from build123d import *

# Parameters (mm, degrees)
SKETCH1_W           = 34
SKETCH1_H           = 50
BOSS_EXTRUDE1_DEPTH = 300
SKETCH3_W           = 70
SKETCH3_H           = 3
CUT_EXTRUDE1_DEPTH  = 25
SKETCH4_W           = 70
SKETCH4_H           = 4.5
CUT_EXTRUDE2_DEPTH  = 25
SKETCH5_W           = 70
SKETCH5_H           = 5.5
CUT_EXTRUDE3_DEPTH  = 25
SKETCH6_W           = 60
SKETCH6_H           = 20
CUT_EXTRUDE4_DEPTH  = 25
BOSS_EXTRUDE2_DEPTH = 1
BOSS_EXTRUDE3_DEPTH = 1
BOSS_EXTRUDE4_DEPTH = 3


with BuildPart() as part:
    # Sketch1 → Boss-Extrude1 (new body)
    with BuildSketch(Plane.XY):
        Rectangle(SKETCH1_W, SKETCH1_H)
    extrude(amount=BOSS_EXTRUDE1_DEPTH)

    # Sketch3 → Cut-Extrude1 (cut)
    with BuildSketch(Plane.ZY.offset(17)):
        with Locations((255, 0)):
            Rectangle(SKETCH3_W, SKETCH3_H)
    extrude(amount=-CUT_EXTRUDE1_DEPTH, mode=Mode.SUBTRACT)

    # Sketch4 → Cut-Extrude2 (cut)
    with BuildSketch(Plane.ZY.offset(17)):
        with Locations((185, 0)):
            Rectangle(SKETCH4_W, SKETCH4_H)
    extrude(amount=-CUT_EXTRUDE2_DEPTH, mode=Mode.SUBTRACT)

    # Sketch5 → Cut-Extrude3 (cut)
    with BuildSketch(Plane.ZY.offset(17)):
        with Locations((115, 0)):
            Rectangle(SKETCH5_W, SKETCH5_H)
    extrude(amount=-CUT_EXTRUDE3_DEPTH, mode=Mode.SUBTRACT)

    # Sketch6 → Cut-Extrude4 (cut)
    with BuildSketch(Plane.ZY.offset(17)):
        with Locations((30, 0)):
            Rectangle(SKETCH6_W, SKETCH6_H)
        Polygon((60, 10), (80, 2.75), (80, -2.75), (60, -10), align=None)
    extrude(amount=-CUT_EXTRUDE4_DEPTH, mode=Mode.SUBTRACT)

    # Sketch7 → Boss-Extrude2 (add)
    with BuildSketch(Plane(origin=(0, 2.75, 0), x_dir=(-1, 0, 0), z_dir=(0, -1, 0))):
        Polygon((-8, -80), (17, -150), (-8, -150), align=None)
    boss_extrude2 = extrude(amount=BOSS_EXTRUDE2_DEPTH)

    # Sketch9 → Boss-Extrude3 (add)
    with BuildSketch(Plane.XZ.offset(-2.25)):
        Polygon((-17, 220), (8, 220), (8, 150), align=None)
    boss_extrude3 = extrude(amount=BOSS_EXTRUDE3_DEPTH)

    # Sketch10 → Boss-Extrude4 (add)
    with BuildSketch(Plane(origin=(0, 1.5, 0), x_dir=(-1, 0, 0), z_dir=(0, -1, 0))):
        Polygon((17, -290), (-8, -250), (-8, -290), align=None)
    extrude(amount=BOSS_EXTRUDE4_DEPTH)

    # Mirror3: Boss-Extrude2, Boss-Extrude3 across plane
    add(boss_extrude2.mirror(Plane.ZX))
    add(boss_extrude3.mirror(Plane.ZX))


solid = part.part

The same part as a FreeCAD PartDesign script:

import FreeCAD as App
import Part
import Sketcher
from FreeCAD import Vector


def add_polygon(sketch, points):
    """Adds a closed chain of lines whose ends are joined by coincident constraints."""
    first, n = sketch.GeometryCount, len(points)
    for a, b in zip(points, points[1:] + points[:1]):
        sketch.addGeometry(Part.LineSegment(App.Vector(*a, 0), App.Vector(*b, 0)), False)
    for i in range(n):
        sketch.addConstraint(Sketcher.Constraint("Coincident", first + i, 2, first + (i + 1) % n, 1))

doc = App.newDocument("Part")
params = doc.addObject("Spreadsheet::Sheet", "Params")
for row, (alias, value) in enumerate([
    ("sketch1_width", "34 mm"),
    ("sketch1_height", "50 mm"),
    ("pad1_length", "300 mm"),
    ("sketch2_width", "3 mm"),
    ("sketch2_height", "70 mm"),
    ("pocket1_length", "25 mm"),
    ("sketch3_height", "70 mm"),
    ("sketch3_width", "4.5 mm"),
    ("pocket2_length", "25 mm"),
    ("sketch4_height", "70 mm"),
    ("sketch4_width", "5.5 mm"),
    ("pocket3_length", "25 mm"),
    ("sketch5_width", "20 mm"),
    ("sketch5_height", "60 mm"),
    ("sketch5_width2", "5.5 mm"),
    ("pocket4_length", "25 mm"),
    ("sketch6_width", "25 mm"),
    ("sketch6_height", "70 mm"),
    ("pad2_length", "1 mm"),
    ("sketch7_width", "25 mm"),
    ("sketch7_height", "70 mm"),
    ("pad3_length", "1 mm"),
    ("sketch8_width", "25 mm"),
    ("sketch8_height", "40 mm"),
    ("pad4_length", "3 mm"),
], start=1):
    params.set(f"A{row}", alias)
    params.set(f"B{row}", "=" + value)
    params.setAlias(f"B{row}", alias)

body = doc.addObject("PartDesign::Body", "Body")

sketch1 = body.newObject("Sketcher::SketchObject", "Sketch")
sketch1.AttachmentSupport = (doc.getObject("XY_Plane"), [""])
sketch1.MapMode = "FlatFace"
add_polygon(sketch1, [(-17, 25), (-17, -25), (17, -25), (17, 25)])
sketch1.addConstraint(Sketcher.Constraint("Vertical", 0))
sketch1.addConstraint(Sketcher.Constraint("Horizontal", 1))
sketch1.addConstraint(Sketcher.Constraint("Vertical", 2))
sketch1.addConstraint(Sketcher.Constraint("Horizontal", 3))
sketch1.addConstraint(Sketcher.Constraint("Symmetric", 0, 2, 2, 2, -1, 1))
sketch1.addConstraint(Sketcher.Constraint("DistanceX", 1, 1, 1, 2, 34.0))
sketch1.addConstraint(Sketcher.Constraint("DistanceY", 0, 2, 0, 1, 50.0))
sketch1.setExpression("Constraints[9]", "Params.sketch1_width")
sketch1.setExpression("Constraints[10]", "Params.sketch1_height")
pad1 = body.newObject("PartDesign::Pad", "Pad")
pad1.Profile = sketch1
pad1.setExpression("Length", "Params.pad1_length")

sketch2 = body.newObject("Sketcher::SketchObject", "Sketch001")
sketch2.AttachmentSupport = (doc.getObject("YZ_Plane"), [""])
sketch2.MapMode = "FlatFace"
sketch2.AttachmentOffset = App.Placement(Vector(0, 0, -17), App.Rotation())
add_polygon(sketch2, [(1.5, 220), (-1.5, 220), (-1.5, 290), (1.5, 290)])
sketch2.addConstraint(Sketcher.Constraint("Horizontal", 0))
sketch2.addConstraint(Sketcher.Constraint("Vertical", 1))
sketch2.addConstraint(Sketcher.Constraint("Horizontal", 2))
sketch2.addConstraint(Sketcher.Constraint("Vertical", 3))
sketch2.addConstraint(Sketcher.Constraint("DistanceX", 0, 2, 0, 1, 3.0))
sketch2.addConstraint(Sketcher.Constraint("DistanceY", 1, 1, 1, 2, 70.0))
sketch2.addConstraint(Sketcher.Constraint("DistanceY", -1, 1, 0, 2, 220.0))
sketch2.addConstraint(Sketcher.Constraint("DistanceX", 0, 2, -1, 1, 1.5))
sketch2.setExpression("Constraints[8]", "Params.sketch2_width")
sketch2.setExpression("Constraints[9]", "Params.sketch2_height")
pocket1 = body.newObject("PartDesign::Pocket", "Pocket")
pocket1.Profile = sketch2
pocket1.setExpression("Length", "Params.pocket1_length")
pocket1.Reversed = True

sketch3 = body.newObject("Sketcher::SketchObject", "Sketch002")
sketch3.AttachmentSupport = (doc.getObject("YZ_Plane"), [""])
sketch3.MapMode = "FlatFace"
sketch3.AttachmentOffset = App.Placement(Vector(0, 0, -17), App.Rotation())
add_polygon(sketch3, [(2.2, 150), (-2.2, 150), (-2.2, 220), (2.2, 220)])
sketch3.addConstraint(Sketcher.Constraint("Horizontal", 0))
sketch3.addConstraint(Sketcher.Constraint("Vertical", 1))
sketch3.addConstraint(Sketcher.Constraint("Horizontal", 2))
sketch3.addConstraint(Sketcher.Constraint("Vertical", 3))
sketch3.addConstraint(Sketcher.Constraint("DistanceY", 1, 1, 1, 2, 70.0))
sketch3.addConstraint(Sketcher.Constraint("DistanceX", 0, 2, 0, 1, 4.5))
sketch3.addConstraint(Sketcher.Constraint("DistanceY", -1, 1, 0, 2, 150.0))
sketch3.addConstraint(Sketcher.Constraint("DistanceX", 0, 2, -1, 1, 2.25))
sketch3.setExpression("Constraints[8]", "Params.sketch3_height")
sketch3.setExpression("Constraints[9]", "Params.sketch3_width")
pocket2 = body.newObject("PartDesign::Pocket", "Pocket001")
pocket2.Profile = sketch3
pocket2.setExpression("Length", "Params.pocket2_length")
pocket2.Reversed = True

sketch4 = body.newObject("Sketcher::SketchObject", "Sketch003")
sketch4.AttachmentSupport = (doc.getObject("YZ_Plane"), [""])
sketch4.MapMode = "FlatFace"
sketch4.AttachmentOffset = App.Placement(Vector(0, 0, -17), App.Rotation())
add_polygon(sketch4, [(3, 80), (-3, 80), (-3, 150), (3, 150)])
sketch4.addConstraint(Sketcher.Constraint("Horizontal", 0))
sketch4.addConstraint(Sketcher.Constraint("Vertical", 1))
sketch4.addConstraint(Sketcher.Constraint("Horizontal", 2))
sketch4.addConstraint(Sketcher.Constraint("Vertical", 3))
sketch4.addConstraint(Sketcher.Constraint("DistanceY", 1, 1, 1, 2, 70.0))
sketch4.addConstraint(Sketcher.Constraint("DistanceX", 0, 2, 0, 1, 5.5))
sketch4.addConstraint(Sketcher.Constraint("DistanceY", -1, 1, 0, 2, 80.0))
sketch4.addConstraint(Sketcher.Constraint("DistanceX", 0, 2, -1, 1, 2.75))
sketch4.setExpression("Constraints[8]", "Params.sketch4_height")
sketch4.setExpression("Constraints[9]", "Params.sketch4_width")
pocket3 = body.newObject("PartDesign::Pocket", "Pocket002")
pocket3.Profile = sketch4
pocket3.setExpression("Length", "Params.pocket3_length")
pocket3.Reversed = True

sketch5 = body.newObject("Sketcher::SketchObject", "Sketch004")
sketch5.AttachmentSupport = (doc.getObject("YZ_Plane"), [""])
sketch5.MapMode = "FlatFace"
sketch5.AttachmentOffset = App.Placement(Vector(0, 0, -17), App.Rotation())
add_polygon(sketch5, [(10, 0), (-10, 0), (-10, 60), (-3, 80), (3, 80), (10, 60)])
sketch5.addConstraint(Sketcher.Constraint("Horizontal", 0))
sketch5.addConstraint(Sketcher.Constraint("Vertical", 1))
sketch5.addConstraint(Sketcher.Constraint("Horizontal", 3))
sketch5.addConstraint(Sketcher.Constraint("Vertical", 5))
sketch5.addConstraint(Sketcher.Constraint("Symmetric", 0, 2, 5, 2, -1, 1))
sketch5.addConstraint(Sketcher.Constraint("Horizontal", 1, 2, 4, 2))
sketch5.addConstraint(Sketcher.Constraint("Equal", 2, 4))
sketch5.addConstraint(Sketcher.Constraint("DistanceX", 0, 2, 0, 1, 20.0))
sketch5.addConstraint(Sketcher.Constraint("DistanceY", 1, 1, 1, 2, 60.0))
sketch5.addConstraint(Sketcher.Constraint("DistanceX", 3, 1, 3, 2, 5.5))
sketch5.addConstraint(Sketcher.Constraint("DistanceY", -1, 1, 2, 2, 80.0))
sketch5.setExpression("Constraints[13]", "Params.sketch5_width")
sketch5.setExpression("Constraints[14]", "Params.sketch5_height")
sketch5.setExpression("Constraints[15]", "Params.sketch5_width2")
pocket4 = body.newObject("PartDesign::Pocket", "Pocket003")
pocket4.Profile = sketch5
pocket4.setExpression("Length", "Params.pocket4_length")
pocket4.Reversed = True

sketch6 = body.newObject("Sketcher::SketchObject", "Sketch005")
sketch6.AttachmentSupport = (doc.getObject("XZ_Plane"), [""])
sketch6.MapMode = "FlatFace"
sketch6.AttachmentOffset = App.Placement(Vector(0, 0, -2.75), App.Rotation())
add_polygon(sketch6, [(-17, 150), (8, 80), (8, 150)])
sketch6.addConstraint(Sketcher.Constraint("Vertical", 1))
sketch6.addConstraint(Sketcher.Constraint("Horizontal", 2))
sketch6.addConstraint(Sketcher.Constraint("DistanceX", 2, 2, 2, 1, 25.0))
sketch6.addConstraint(Sketcher.Constraint("DistanceY", 1, 1, 1, 2, 70.0))
sketch6.addConstraint(Sketcher.Constraint("DistanceX", -1, 1, 0, 2, 8.0))
sketch6.addConstraint(Sketcher.Constraint("DistanceY", -1, 1, 0, 2, 80.0))
sketch6.setExpression("Constraints[5]", "Params.sketch6_width")
sketch6.setExpression("Constraints[6]", "Params.sketch6_height")
pad2 = body.newObject("PartDesign::Pad", "Pad001")
pad2.Profile = sketch6
pad2.setExpression("Length", "Params.pad2_length")

sketch7 = body.newObject("Sketcher::SketchObject", "Sketch006")
sketch7.AttachmentSupport = (doc.getObject("XZ_Plane"), [""])
sketch7.MapMode = "FlatFace"
sketch7.AttachmentOffset = App.Placement(Vector(0, 0, -2.25), App.Rotation())
add_polygon(sketch7, [(8, 220), (-17, 220), (8, 150)])
sketch7.addConstraint(Sketcher.Constraint("Horizontal", 0))
sketch7.addConstraint(Sketcher.Constraint("Vertical", 2))
sketch7.addConstraint(Sketcher.Constraint("DistanceX", 0, 2, 0, 1, 25.0))
sketch7.addConstraint(Sketcher.Constraint("DistanceY", 2, 1, 2, 2, 70.0))
sketch7.addConstraint(Sketcher.Constraint("DistanceX", 0, 2, -1, 1, 17.0))
sketch7.addConstraint(Sketcher.Constraint("DistanceY", -1, 1, 0, 2, 220.0))
sketch7.setExpression("Constraints[5]", "Params.sketch7_width")
sketch7.setExpression("Constraints[6]", "Params.sketch7_height")
pad3 = body.newObject("PartDesign::Pad", "Pad002")
pad3.Profile = sketch7
pad3.setExpression("Length", "Params.pad3_length")

sketch8 = body.newObject("Sketcher::SketchObject", "Sketch007")
sketch8.AttachmentSupport = (doc.getObject("XZ_Plane"), [""])
sketch8.MapMode = "FlatFace"
sketch8.AttachmentOffset = App.Placement(Vector(0, 0, -1.5), App.Rotation())
add_polygon(sketch8, [(-17, 290), (8, 250), (8, 290)])
sketch8.addConstraint(Sketcher.Constraint("Vertical", 1))
sketch8.addConstraint(Sketcher.Constraint("Horizontal", 2))
sketch8.addConstraint(Sketcher.Constraint("DistanceX", 2, 2, 2, 1, 25.0))
sketch8.addConstraint(Sketcher.Constraint("DistanceY", 1, 1, 1, 2, 40.0))
sketch8.addConstraint(Sketcher.Constraint("DistanceX", -1, 1, 0, 2, 8.0))
sketch8.addConstraint(Sketcher.Constraint("DistanceY", -1, 1, 0, 2, 250.0))
sketch8.setExpression("Constraints[5]", "Params.sketch8_width")
sketch8.setExpression("Constraints[6]", "Params.sketch8_height")
pad4 = body.newObject("PartDesign::Pad", "Pad003")
pad4.Profile = sketch8
pad4.setExpression("Length", "Params.pad4_length")
doc.recompute()

mirrored = body.newObject("PartDesign::Mirrored", "Mirrored")
mirrored.Originals = [pad2, pad3]
mirrored.MirrorPlane = (doc.getObject("XZ_Plane"), [""])
body.Tip = mirrored

doc.recompute()
